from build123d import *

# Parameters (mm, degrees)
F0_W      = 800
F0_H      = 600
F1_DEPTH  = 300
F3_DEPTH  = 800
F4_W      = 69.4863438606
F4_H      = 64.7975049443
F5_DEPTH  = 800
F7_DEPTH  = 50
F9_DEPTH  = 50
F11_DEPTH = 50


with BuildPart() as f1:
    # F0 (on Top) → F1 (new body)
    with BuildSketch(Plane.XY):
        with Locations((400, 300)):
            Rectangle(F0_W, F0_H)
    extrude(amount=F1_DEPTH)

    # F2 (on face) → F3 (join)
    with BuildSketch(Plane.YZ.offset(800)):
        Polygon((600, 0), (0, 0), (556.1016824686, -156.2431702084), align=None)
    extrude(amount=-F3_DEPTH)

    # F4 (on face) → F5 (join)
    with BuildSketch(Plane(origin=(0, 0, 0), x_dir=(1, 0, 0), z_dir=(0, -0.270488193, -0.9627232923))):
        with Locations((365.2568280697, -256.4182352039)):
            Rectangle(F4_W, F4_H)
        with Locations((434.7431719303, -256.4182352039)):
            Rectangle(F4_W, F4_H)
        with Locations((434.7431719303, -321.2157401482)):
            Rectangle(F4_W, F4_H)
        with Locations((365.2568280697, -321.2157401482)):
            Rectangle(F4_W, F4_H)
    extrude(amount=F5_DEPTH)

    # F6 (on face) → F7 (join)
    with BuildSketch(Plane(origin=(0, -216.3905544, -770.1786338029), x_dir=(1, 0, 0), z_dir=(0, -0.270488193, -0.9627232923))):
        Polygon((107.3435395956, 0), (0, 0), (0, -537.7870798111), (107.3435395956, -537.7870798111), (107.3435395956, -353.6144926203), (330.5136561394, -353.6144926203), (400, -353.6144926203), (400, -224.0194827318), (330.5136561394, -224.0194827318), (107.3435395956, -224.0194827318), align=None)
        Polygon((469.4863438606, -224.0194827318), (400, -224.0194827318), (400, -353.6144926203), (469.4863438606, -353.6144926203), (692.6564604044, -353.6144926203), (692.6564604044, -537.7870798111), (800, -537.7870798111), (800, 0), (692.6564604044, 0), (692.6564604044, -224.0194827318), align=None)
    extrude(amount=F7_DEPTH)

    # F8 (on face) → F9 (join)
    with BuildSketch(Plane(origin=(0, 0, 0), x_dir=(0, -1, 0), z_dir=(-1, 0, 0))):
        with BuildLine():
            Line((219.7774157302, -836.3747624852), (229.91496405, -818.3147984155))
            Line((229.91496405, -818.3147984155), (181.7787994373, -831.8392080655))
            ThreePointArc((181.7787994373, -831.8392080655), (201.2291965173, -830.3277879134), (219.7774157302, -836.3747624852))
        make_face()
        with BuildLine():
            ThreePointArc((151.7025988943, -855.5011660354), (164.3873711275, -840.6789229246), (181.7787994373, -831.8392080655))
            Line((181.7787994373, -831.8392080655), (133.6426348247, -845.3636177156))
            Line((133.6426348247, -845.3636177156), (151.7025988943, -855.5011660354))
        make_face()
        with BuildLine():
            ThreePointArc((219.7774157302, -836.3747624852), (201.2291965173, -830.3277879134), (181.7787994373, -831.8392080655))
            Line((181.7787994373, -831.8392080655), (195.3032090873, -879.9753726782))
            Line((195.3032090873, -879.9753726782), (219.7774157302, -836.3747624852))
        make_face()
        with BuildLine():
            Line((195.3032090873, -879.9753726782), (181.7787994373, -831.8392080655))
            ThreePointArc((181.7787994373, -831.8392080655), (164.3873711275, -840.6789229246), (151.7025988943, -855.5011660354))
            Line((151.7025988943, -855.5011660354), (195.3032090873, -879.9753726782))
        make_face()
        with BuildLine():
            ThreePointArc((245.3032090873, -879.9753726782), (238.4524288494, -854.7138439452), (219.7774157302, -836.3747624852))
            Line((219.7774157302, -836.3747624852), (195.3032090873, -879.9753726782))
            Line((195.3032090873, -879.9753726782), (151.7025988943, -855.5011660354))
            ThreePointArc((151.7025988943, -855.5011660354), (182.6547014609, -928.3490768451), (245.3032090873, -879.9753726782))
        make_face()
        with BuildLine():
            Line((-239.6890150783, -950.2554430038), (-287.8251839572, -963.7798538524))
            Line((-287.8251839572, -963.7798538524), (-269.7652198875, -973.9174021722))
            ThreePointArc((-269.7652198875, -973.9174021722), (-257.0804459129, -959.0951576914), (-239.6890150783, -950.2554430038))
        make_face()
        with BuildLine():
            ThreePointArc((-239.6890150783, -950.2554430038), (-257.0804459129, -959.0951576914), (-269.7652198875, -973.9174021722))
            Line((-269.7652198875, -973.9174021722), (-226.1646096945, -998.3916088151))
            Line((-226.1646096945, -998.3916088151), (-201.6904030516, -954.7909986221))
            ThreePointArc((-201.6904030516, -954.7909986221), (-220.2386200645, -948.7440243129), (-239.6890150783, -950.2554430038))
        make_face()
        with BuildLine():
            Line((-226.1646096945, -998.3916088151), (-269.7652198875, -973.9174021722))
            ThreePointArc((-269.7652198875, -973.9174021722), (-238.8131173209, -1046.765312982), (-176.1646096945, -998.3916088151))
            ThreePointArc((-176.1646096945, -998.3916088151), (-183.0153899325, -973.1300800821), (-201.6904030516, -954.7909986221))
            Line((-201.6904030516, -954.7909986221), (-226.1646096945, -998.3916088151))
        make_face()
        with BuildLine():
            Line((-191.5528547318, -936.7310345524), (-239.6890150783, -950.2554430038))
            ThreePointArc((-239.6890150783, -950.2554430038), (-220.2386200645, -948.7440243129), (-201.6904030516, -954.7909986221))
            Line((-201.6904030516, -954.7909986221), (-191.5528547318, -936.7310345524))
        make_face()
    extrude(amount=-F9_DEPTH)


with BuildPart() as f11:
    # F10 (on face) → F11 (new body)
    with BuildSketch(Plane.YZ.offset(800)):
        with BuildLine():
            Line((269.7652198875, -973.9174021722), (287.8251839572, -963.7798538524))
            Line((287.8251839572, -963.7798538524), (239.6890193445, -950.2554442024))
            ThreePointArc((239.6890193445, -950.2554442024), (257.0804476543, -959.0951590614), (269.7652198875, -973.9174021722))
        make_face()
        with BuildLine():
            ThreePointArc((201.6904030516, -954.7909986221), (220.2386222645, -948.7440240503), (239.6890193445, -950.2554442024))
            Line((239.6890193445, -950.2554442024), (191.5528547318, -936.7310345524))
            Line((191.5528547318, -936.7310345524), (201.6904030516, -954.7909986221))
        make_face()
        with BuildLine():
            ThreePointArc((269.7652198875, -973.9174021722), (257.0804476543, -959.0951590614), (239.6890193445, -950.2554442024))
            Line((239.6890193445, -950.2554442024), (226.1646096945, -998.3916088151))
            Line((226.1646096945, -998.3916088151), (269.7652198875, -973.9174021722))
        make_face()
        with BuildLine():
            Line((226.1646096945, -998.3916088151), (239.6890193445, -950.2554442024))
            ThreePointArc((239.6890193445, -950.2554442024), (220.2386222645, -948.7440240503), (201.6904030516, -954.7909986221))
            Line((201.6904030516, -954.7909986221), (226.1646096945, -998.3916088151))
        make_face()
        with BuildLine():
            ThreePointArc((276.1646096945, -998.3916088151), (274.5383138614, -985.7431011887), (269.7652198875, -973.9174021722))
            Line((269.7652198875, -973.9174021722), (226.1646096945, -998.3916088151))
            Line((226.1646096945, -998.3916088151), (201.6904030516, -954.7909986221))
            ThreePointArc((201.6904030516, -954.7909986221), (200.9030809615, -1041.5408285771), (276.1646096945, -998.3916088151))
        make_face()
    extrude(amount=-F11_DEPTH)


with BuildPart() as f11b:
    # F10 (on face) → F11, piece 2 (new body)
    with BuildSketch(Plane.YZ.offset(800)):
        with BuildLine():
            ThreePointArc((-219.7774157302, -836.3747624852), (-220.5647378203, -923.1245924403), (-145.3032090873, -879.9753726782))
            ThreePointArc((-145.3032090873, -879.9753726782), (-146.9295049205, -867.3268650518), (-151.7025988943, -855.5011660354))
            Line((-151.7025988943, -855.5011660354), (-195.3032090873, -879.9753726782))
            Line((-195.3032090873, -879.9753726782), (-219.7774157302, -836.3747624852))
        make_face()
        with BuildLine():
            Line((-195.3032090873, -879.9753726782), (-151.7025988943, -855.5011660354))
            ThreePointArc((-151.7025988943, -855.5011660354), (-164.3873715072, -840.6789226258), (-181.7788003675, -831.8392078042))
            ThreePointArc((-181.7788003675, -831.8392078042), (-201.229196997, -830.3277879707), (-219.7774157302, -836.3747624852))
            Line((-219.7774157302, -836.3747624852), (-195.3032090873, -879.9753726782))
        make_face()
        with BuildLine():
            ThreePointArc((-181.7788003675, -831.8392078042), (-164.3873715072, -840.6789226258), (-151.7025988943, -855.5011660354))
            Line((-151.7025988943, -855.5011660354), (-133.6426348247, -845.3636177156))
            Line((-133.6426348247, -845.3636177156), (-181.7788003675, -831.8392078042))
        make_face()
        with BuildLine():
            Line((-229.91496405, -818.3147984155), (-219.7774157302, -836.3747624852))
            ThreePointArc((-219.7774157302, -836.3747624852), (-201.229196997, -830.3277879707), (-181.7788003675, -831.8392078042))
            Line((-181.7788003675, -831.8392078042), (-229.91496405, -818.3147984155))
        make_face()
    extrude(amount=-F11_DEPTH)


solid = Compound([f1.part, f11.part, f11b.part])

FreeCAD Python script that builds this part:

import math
import FreeCAD as App
import Part
import Sketcher
from FreeCAD import Vector
Q = App.Units.Quantity

doc = App.newDocument("Part")
params = doc.addObject("Spreadsheet::Sheet", "Params")
for row, (alias, value) in enumerate([
    ("sketch1_width", "800 mm"),
    ("sketch1_height", "600 mm"),
    ("pad1_length", "300 mm"),
    ("sketch2_width", "600 mm"),
    ("pad2_length", "800 mm"),
    ("pad3_length", "800 mm"),
    ("pad4_length", "50 mm"),
    ("sketch5_radius", "50 mm"),
    ("sketch5_length", "50 mm"),
    ("pad5_length", "50 mm"),
    ("sketch6_radius", "50 mm"),
    ("sketch6_length", "100 mm"),
    ("pad6_length", "50 mm"),
    ("sketch7_radius", "50 mm"),
    ("sketch7_length", "100 mm"),
    ("pad7_length", "50 mm"),
], start=1):
    params.set(f"A{row}", alias)
    params.set(f"B{row}", "=" + value)
    params.setAlias(f"B{row}", alias)

body = doc.addObject("PartDesign::Body", "Body")

sketch1 = body.newObject("Sketcher::SketchObject", "Sketch")
sketch1.AttachmentSupport = (doc.getObject("XY_Plane"), [""])
sketch1.MapMode = "FlatFace"
sketch1.addGeometry([
    Part.LineSegment(Vector(0, 600, 0), Vector(0, 0, 0)),
    Part.LineSegment(Vector(0, 0, 0), Vector(800, 0, 0)),
    Part.LineSegment(Vector(800, 0, 0), Vector(800, 600, 0)),
    Part.LineSegment(Vector(800, 600, 0), Vector(0, 600, 0)),
], False)
sketch1.addConstraint([
    Sketcher.Constraint("Coincident", 0, 2, 1, 1),
    Sketcher.Constraint("Coincident", 1, 2, 2, 1),
    Sketcher.Constraint("Coincident", 2, 2, 3, 1),
    Sketcher.Constraint("Coincident", 3, 2, 0, 1),
    Sketcher.Constraint("Vertical", 0),
    Sketcher.Constraint("Horizontal", 1),
    Sketcher.Constraint("Vertical", 2),
    Sketcher.Constraint("Horizontal", 3),
    Sketcher.Constraint("Coincident", 0, 2, -1, 1),
    Sketcher.Constraint("DistanceX", 1, 1, 1, 2, Q("800 mm")),
    Sketcher.Constraint("DistanceY", 0, 2, 0, 1, Q("600 mm")),
])
sketch1.setExpression("Constraints[9]", "Params.sketch1_width")
sketch1.setExpression("Constraints[10]", "Params.sketch1_height")
pad1 = body.newObject("PartDesign::Pad", "Pad")
pad1.Profile = sketch1
pad1.setExpression("Length", "Params.pad1_length")

sketch2 = body.newObject("Sketcher::SketchObject", "Sketch001")
sketch2.AttachmentSupport = (doc.getObject("YZ_Plane"), [""])
sketch2.MapMode = "FlatFace"
sketch2.AttachmentOffset = App.Placement(Vector(0, 0, 800), App.Rotation())
sketch2.addGeometry([
    Part.LineSegment(Vector(600, 0, 0), Vector(0, 0, 0)),
    Part.LineSegment(Vector(0, 0, 0), Vector(556, -156, 0)),
    Part.LineSegment(Vector(556, -156, 0), Vector(600, 0, 0)),
], False)
sketch2.addConstraint([
    Sketcher.Constraint("Coincident", 0, 2, 1, 1),
    Sketcher.Constraint("Coincident", 1, 2, 2, 1),
    Sketcher.Constraint("Coincident", 2, 2, 0, 1),
    Sketcher.Constraint("Horizontal", 0),
    Sketcher.Constraint("Coincident", 0, 2, -1, 1),
    Sketcher.Constraint("Perpendicular", 1, 2),
    Sketcher.Constraint("DistanceX", 0, 2, 0, 1, Q("600 mm")),
    Sketcher.Constraint("DistanceY", 1, 2, -1, 1, Q("156.24317 mm")),
])
sketch2.setExpression("Constraints[6]", "Params.sketch2_width")
pad2 = body.newObject("PartDesign::Pad", "Pad001")
pad2.Profile = sketch2
pad2.setExpression("Length", "Params.pad2_length")
pad2.Reversed = True

sketch3 = body.newObject("Sketcher::SketchObject", "Sketch002")
sketch3.Placement = App.Placement(Vector(0, 0, 0), App.Rotation(Vector(1, 0, 0), Vector(0, -0.962723292, 0.270488193), Vector(0, -0.270488193, -0.962723292), "ZXY"))
sketch3.addGeometry([
    Part.LineSegment(Vector(331, -224, 0), Vector(331, -354, 0)),
    Part.LineSegment(Vector(331, -354, 0), Vector(469, -354, 0)),
    Part.LineSegment(Vector(469, -354, 0), Vector(469, -224, 0)),
    Part.LineSegment(Vector(469, -224, 0), Vector(331, -224, 0)),
], False)
sketch3.addConstraint([
    Sketcher.Constraint("Coincident", 0, 2, 1, 1),
    Sketcher.Constraint("Coincident", 1, 2, 2, 1),
    Sketcher.Constraint("Coincident", 2, 2, 3, 1),
    Sketcher.Constraint("Coincident", 3, 2, 0, 1),
    Sketcher.Constraint("Vertical", 0),
    Sketcher.Constraint("Horizontal", 1),
    Sketcher.Constraint("Vertical", 2),
    Sketcher.Constraint("Horizontal", 3),
    Sketcher.Constraint("DistanceY", 0, 2, 0, 1, Q("129.59501 mm")),
    Sketcher.Constraint("DistanceX", 1, 1, 1, 2, Q("138.972688 mm")),
    Sketcher.Constraint("DistanceX", -1, 1, 0, 2, Q("330.513656 mm")),
    Sketcher.Constraint("DistanceY", 0, 2, -1, 1, Q("353.614492 mm")),
])
pad3 = body.newObject("PartDesign::Pad", "Pad002")
pad3.Profile = sketch3
pad3.setExpression("Length", "Params.pad3_length")

sketch4 = body.newObject("Sketcher::SketchObject", "Sketch003")
sketch4.Placement = App.Placement(Vector(0, -216.390554, -770.178634), App.Rotation(Vector(1, 0, 0), Vector(0, -0.962723292, 0.270488193), Vector(0, -0.270488193, -0.962723292), "ZXY"))
sketch4.addGeometry([
    Part.LineSegment(Vector(107, 0, 0), Vector(0, 0, 0)),
    Part.LineSegment(Vector(0, 0, 0), Vector(0, -538, 0)),
    Part.LineSegment(Vector(0, -538, 0), Vector(107, -538, 0)),
    Part.LineSegment(Vector(107, -538, 0), Vector(107, -354, 0)),
    Part.LineSegment(Vector(107, -354, 0), Vector(693, -354, 0)),
    Part.LineSegment(Vector(693, -354, 0), Vector(693, -538, 0)),
    Part.LineSegment(Vector(693, -538, 0), Vector(800, -538, 0)),
    Part.LineSegment(Vector(800, -538, 0), Vector(800, 0, 0)),
    Part.LineSegment(Vector(800, 0, 0), Vector(693, 0, 0)),
    Part.LineSegment(Vector(693, 0, 0), Vector(693, -224, 0)),
    Part.LineSegment(Vector(693, -224, 0), Vector(107, -224, 0)),
    Part.LineSegment(Vector(107, -224, 0), Vector(107, 0, 0)),
], False)
sketch4.addConstraint([
    Sketcher.Constraint("Coincident", 0, 2, 1, 1),
    Sketcher.Constraint("Coincident", 1, 2, 2, 1),
    Sketcher.Constraint("Coincident", 2, 2, 3, 1),
    Sketcher.Constraint("Coincident", 3, 2, 4, 1),
    Sketcher.Constraint("Coincident", 4, 2, 5, 1),
    Sketcher.Constraint("Coincident", 5, 2, 6, 1),
    Sketcher.Constraint("Coincident", 6, 2, 7, 1),
    Sketcher.Constraint("Coincident", 7, 2, 8, 1),
    Sketcher.Constraint("Coincident", 8, 2, 9, 1),
    Sketcher.Constraint("Coincident", 9, 2, 10, 1),
    Sketcher.Constraint("Coincident", 10, 2, 11, 1),
    Sketcher.Constraint("Coincident", 11, 2, 0, 1),
    Sketcher.Constraint("Horizontal", 0),
    Sketcher.Constraint("Vertical", 1),
    Sketcher.Constraint("Horizontal", 2),
    Sketcher.Constraint("Vertical", 3),
    Sketcher.Constraint("Horizontal", 4),
    Sketcher.Constraint("Vertical", 5),
    Sketcher.Constraint("Horizontal", 6),
    Sketcher.Constraint("Vertical", 7),
    Sketcher.Constraint("Horizontal", 8),
    Sketcher.Constraint("Vertical", 9),
    Sketcher.Constraint("Horizontal", 10),
    Sketcher.Constraint("Vertical", 11),
    Sketcher.Constraint("Coincident", 0, 2, -1, 1),
    Sketcher.Constraint("PointOnObject", 7, 2, -1),
    Sketcher.Constraint("Horizontal", 2, 2, 5, 2),
    Sketcher.Constraint("Vertical", 5, 2, 8, 2),
    Sketcher.Constraint("Vertical", 3, 2, 10, 2),
    Sketcher.Constraint("Equal", 2, 6),
    Sketcher.Constraint("DistanceX", -1, 1, 6, 2, Q("800 mm")),
    Sketcher.Constraint("DistanceX", 0, 2, 0, 1, Q("107.34354 mm")),
    Sketcher.Constraint("DistanceY", 1, 2, 1, 1, Q("537.78708 mm")),
    Sketcher.Constraint("DistanceY", 3, 1, 3, 2, Q("184.172587 mm")),
    Sketcher.Constraint("DistanceY", 9, 2, 9, 1, Q("224.019483 mm")),
])
pad4 = body.newObject("PartDesign::Pad", "Pad003")
pad4.Profile = sketch4
pad4.setExpression("Length", "Params.pad4_length")

sketch5 = body.newObject("Sketcher::SketchObject", "Sketch004")
sketch5.AttachmentSupport = (doc.getObject("YZ_Plane"), [""])
sketch5.MapMode = "FlatFace"
sketch5.addGeometry([
    Part.LineSegment(Vector(-230, -818, 0), Vector(-182, -832, 0)),
    Part.LineSegment(Vector(-182, -832, 0), Vector(-134, -845, 0)),
    Part.LineSegment(Vector(-134, -845, 0), Vector(-152, -856, 0)),
    Part.ArcOfCircle(Part.Circle(Vector(-195, -880, 0), Vector(0, 0, 1), 50), math.radians(180), math.radians(389)),
    Part.ArcOfCircle(Part.Circle(Vector(-195, -880, 0), Vector(0, 0, 1), 50), math.radians(119), math.radians(180)),
    Part.LineSegment(Vector(-220, -836, 0), Vector(-230, -818, 0)),
    Part.LineSegment(Vector(240, -950, 0), Vector(288, -964, 0)),
    Part.LineSegment(Vector(288, -964, 0), Vector(270, -974, 0)),
    Part.ArcOfCircle(Part.Circle(Vector(226, -998, 0), Vector(0, 0, 1), 50), math.radians(180), math.radians(389)),
    Part.ArcOfCircle(Part.Circle(Vector(226, -998, 0), Vector(0, 0, 1), 50), math.radians(119), math.radians(180)),
    Part.LineSegment(Vector(202, -955, 0), Vector(192, -937, 0)),
    Part.LineSegment(Vector(192, -937, 0), Vector(240, -950, 0)),
], False)
sketch5.addConstraint([
    Sketcher.Constraint("Coincident", 0, 2, 1, 1),
    Sketcher.Constraint("Coincident", 1, 2, 2, 1),
    Sketcher.Constraint("Coincident", 2, 2, 3, 2),
    Sketcher.Constraint("Tangent", 3, 1, 4, 2),
    Sketcher.Constraint("Coincident", 4, 1, 5, 1),
    Sketcher.Constraint("Coincident", 5, 2, 0, 1),
    Sketcher.Constraint("Coincident", 6, 2, 7, 1),
    Sketcher.Constraint("Coincident", 7, 2, 8, 2),
    Sketcher.Constraint("Tangent", 8, 1, 9, 2),
    Sketcher.Constraint("Coincident", 9, 1, 10, 1),
    Sketcher.Constraint("Coincident", 10, 2, 11, 1),
    Sketcher.Constraint("Coincident", 11, 2, 6, 1),
    Sketcher.Constraint("Equal", 3, 4),
    Sketcher.Constraint("Equal", 4, 8),
    Sketcher.Constraint("Equal", 8, 9),
    Sketcher.Constraint("Parallel", 0, 1),
    Sketcher.Constraint("Perpendicular", 2, 5),
    Sketcher.Constraint("Parallel", 1, 6),
    Sketcher.Constraint("Perpendicular", 5, 7),
    Sketcher.Constraint("Perpendicular", 7, 10),
    Sketcher.Constraint("Parallel", 6, 11),
    Sketcher.Constraint("Horizontal", 4, 3, 3, 1),
    Sketcher.Constraint("Horizontal", 9, 3, 8, 1),
    Sketcher.Constraint("Equal", 0, 1),
    Sketcher.Constraint("Equal", 2, 5),
    Sketcher.Constraint("Equal", 5, 7),
    Sketcher.Constraint("Equal", 7, 10),
    Sketcher.Constraint("Radius", 3, Q("50 mm")),
    Sketcher.Constraint("Distance", 0, Q("50 mm")),
    Sketcher.Constraint("DistanceY", 9, 1, -1, 1, Q("954.790999 mm")),
    Sketcher.Constraint("DistanceX", 0, 2, -1, 1, Q("181.778799 mm")),
    Sketcher.Constraint("DistanceX", 2, 2, -1, 1, Q("151.702599 mm")),
    Sketcher.Constraint("DistanceY", 5, 2, -1, 1, Q("818.314798 mm")),
    Sketcher.Constraint("DistanceY", 8, 3, 0, 2, Q("166.552401 mm")),
    Sketcher.Constraint("Distance", 2, Q("20.710678 mm")),
    Sketcher.Constraint("DistanceX", 3, 3, -1, 1, Q("195.303209 mm")),
    Sketcher.Constraint("DistanceX", -1, 1, 8, 3, Q("226.16461 mm")),
    Sketcher.Constraint("DistanceY", 7, 2, 11, 2, Q("23.661959 mm")),
])
sketch5.setExpression("Constraints[27]", "Params.sketch5_radius")
sketch5.setExpression("Constraints[28]", "Params.sketch5_length")
pad5 = body.newObject("PartDesign::Pad", "Pad004")
pad5.Profile = sketch5
pad5.setExpression("Length", "Params.pad5_length")
body2 = doc.addObject("PartDesign::Body", "Body001")

sketch6 = body2.newObject("Sketcher::SketchObject", "Sketch005")
sketch6.AttachmentSupport = (doc.getObject("YZ_Plane001"), [""])
sketch6.MapMode = "FlatFace"
sketch6.AttachmentOffset = App.Placement(Vector(0, 0, 800), App.Rotation())
sketch6.addGeometry([
    Part.LineSegment(Vector(288, -964, 0), Vector(192, -937, 0)),
    Part.LineSegment(Vector(192, -937, 0), Vector(202, -955, 0)),
    Part.ArcOfCircle(Part.Circle(Vector(226, -998, 0), Vector(0, 0, 1), 50), math.radians(119), math.radians(360)),
    Part.ArcOfCircle(Part.Circle(Vector(226, -998, 0), Vector(0, 0, 1), 50), math.radians(0), math.radians(29)),
    Part.LineSegment(Vector(270, -974, 0), Vector(288, -964, 0)),
], False)
sketch6.addConstraint([
    Sketcher.Constraint("Coincident", 0, 2, 1, 1),
    Sketcher.Constraint("Coincident", 1, 2, 2, 1),
    Sketcher.Constraint("Tangent", 2, 2, 3, 1),
    Sketcher.Constraint("Coincident", 3, 2, 4, 1),
    Sketcher.Constraint("Coincident", 4, 2, 0, 1),
    Sketcher.Constraint("Equal", 2, 3),
    Sketcher.Constraint("Perpendicular", 1, 4),
    Sketcher.Constraint("Horizontal", 3, 3, 2, 2),
    Sketcher.Constraint("Equal", 1, 4),
    Sketcher.Constraint("Radius", 2, Q("50 mm")),
    Sketcher.Constraint("Distance", 0, Q("100 mm")),
    Sketcher.Constraint("DistanceY", 1, 2, -1, 1, Q("954.790999 mm")),
    Sketcher.Constraint("Distance", 1, Q("20.710678 mm")),
    Sketcher.Constraint("DistanceX", -1, 1, 2, 3, Q("226.16461 mm")),
    Sketcher.Constraint("DistanceY", 2, 3, -1, 1, Q("998.391609 mm")),
    Sketcher.Constraint("DistanceX", 0, 2, 1, 2, Q("10.137548 mm")),
])
sketch6.setExpression("Constraints[9]", "Params.sketch6_radius")
sketch6.setExpression("Constraints[10]", "Params.sketch6_length")
pad6 = body2.newObject("PartDesign::Pad", "Pad005")
pad6.Profile = sketch6
pad6.setExpression("Length", "Params.pad6_length")
pad6.Reversed = True
body3 = doc.addObject("PartDesign::Body", "Body002")

sketch7 = body3.newObject("Sketcher::SketchObject", "Sketch006")
sketch7.AttachmentSupport = (doc.getObject("YZ_Plane002"), [""])
sketch7.MapMode = "FlatFace"
sketch7.AttachmentOffset = App.Placement(Vector(0, 0, 800), App.Rotation())
sketch7.addGeometry([
    Part.ArcOfCircle(Part.Circle(Vector(-195, -880, 0), Vector(0, 0, 1), 50), math.radians(119), math.radians(360)),
    Part.ArcOfCircle(Part.Circle(Vector(-195, -880, 0), Vector(0, 0, 1), 50), math.radians(0), math.radians(29)),
    Part.LineSegment(Vector(-152, -856, 0), Vector(-134, -845, 0)),
    Part.LineSegment(Vector(-134, -845, 0), Vector(-230, -818, 0)),
    Part.LineSegment(Vector(-230, -818, 0), Vector(-220, -836, 0)),
], False)
sketch7.addConstraint([
    Sketcher.Constraint("Tangent", 0, 2, 1, 1),
    Sketcher.Constraint("Coincident", 1, 2, 2, 1),
    Sketcher.Constraint("Coincident", 2, 2, 3, 1),
    Sketcher.Constraint("Coincident", 3, 2, 4, 1),
    Sketcher.Constraint("Coincident", 4, 2, 0, 1),
    Sketcher.Constraint("Equal", 0, 1),
    Sketcher.Constraint("Perpendicular", 2, 4),
    Sketcher.Constraint("Horizontal", 1, 3, 0, 2),
    Sketcher.Constraint("Equal", 2, 4),
    Sketcher.Constraint("Radius", 0, Q("50 mm")),
    Sketcher.Constraint("Distance", 3, Q("100 mm")),
    Sketcher.Constraint("DistanceX", 1, 2, -1, 1, Q("151.702599 mm")),
    Sketcher.Constraint("DistanceY", 3, 2, -1, 1, Q("818.314798 mm")),
    Sketcher.Constraint("Distance", 2, Q("20.710678 mm")),
    Sketcher.Constraint("DistanceX", 0, 3, -1, 1, Q("195.303209 mm")),
    Sketcher.Constraint("DistanceY", 1, 2, 2, 2, Q("10.137548 mm")),
])
sketch7.setExpression("Constraints[9]", "Params.sketch7_radius")
sketch7.setExpression("Constraints[10]", "Params.sketch7_length")
pad7 = body3.newObject("PartDesign::Pad", "Pad006")
pad7.Profile = sketch7
pad7.setExpression("Length", "Params.pad7_length")
pad7.Reversed = True

doc.recompute()
